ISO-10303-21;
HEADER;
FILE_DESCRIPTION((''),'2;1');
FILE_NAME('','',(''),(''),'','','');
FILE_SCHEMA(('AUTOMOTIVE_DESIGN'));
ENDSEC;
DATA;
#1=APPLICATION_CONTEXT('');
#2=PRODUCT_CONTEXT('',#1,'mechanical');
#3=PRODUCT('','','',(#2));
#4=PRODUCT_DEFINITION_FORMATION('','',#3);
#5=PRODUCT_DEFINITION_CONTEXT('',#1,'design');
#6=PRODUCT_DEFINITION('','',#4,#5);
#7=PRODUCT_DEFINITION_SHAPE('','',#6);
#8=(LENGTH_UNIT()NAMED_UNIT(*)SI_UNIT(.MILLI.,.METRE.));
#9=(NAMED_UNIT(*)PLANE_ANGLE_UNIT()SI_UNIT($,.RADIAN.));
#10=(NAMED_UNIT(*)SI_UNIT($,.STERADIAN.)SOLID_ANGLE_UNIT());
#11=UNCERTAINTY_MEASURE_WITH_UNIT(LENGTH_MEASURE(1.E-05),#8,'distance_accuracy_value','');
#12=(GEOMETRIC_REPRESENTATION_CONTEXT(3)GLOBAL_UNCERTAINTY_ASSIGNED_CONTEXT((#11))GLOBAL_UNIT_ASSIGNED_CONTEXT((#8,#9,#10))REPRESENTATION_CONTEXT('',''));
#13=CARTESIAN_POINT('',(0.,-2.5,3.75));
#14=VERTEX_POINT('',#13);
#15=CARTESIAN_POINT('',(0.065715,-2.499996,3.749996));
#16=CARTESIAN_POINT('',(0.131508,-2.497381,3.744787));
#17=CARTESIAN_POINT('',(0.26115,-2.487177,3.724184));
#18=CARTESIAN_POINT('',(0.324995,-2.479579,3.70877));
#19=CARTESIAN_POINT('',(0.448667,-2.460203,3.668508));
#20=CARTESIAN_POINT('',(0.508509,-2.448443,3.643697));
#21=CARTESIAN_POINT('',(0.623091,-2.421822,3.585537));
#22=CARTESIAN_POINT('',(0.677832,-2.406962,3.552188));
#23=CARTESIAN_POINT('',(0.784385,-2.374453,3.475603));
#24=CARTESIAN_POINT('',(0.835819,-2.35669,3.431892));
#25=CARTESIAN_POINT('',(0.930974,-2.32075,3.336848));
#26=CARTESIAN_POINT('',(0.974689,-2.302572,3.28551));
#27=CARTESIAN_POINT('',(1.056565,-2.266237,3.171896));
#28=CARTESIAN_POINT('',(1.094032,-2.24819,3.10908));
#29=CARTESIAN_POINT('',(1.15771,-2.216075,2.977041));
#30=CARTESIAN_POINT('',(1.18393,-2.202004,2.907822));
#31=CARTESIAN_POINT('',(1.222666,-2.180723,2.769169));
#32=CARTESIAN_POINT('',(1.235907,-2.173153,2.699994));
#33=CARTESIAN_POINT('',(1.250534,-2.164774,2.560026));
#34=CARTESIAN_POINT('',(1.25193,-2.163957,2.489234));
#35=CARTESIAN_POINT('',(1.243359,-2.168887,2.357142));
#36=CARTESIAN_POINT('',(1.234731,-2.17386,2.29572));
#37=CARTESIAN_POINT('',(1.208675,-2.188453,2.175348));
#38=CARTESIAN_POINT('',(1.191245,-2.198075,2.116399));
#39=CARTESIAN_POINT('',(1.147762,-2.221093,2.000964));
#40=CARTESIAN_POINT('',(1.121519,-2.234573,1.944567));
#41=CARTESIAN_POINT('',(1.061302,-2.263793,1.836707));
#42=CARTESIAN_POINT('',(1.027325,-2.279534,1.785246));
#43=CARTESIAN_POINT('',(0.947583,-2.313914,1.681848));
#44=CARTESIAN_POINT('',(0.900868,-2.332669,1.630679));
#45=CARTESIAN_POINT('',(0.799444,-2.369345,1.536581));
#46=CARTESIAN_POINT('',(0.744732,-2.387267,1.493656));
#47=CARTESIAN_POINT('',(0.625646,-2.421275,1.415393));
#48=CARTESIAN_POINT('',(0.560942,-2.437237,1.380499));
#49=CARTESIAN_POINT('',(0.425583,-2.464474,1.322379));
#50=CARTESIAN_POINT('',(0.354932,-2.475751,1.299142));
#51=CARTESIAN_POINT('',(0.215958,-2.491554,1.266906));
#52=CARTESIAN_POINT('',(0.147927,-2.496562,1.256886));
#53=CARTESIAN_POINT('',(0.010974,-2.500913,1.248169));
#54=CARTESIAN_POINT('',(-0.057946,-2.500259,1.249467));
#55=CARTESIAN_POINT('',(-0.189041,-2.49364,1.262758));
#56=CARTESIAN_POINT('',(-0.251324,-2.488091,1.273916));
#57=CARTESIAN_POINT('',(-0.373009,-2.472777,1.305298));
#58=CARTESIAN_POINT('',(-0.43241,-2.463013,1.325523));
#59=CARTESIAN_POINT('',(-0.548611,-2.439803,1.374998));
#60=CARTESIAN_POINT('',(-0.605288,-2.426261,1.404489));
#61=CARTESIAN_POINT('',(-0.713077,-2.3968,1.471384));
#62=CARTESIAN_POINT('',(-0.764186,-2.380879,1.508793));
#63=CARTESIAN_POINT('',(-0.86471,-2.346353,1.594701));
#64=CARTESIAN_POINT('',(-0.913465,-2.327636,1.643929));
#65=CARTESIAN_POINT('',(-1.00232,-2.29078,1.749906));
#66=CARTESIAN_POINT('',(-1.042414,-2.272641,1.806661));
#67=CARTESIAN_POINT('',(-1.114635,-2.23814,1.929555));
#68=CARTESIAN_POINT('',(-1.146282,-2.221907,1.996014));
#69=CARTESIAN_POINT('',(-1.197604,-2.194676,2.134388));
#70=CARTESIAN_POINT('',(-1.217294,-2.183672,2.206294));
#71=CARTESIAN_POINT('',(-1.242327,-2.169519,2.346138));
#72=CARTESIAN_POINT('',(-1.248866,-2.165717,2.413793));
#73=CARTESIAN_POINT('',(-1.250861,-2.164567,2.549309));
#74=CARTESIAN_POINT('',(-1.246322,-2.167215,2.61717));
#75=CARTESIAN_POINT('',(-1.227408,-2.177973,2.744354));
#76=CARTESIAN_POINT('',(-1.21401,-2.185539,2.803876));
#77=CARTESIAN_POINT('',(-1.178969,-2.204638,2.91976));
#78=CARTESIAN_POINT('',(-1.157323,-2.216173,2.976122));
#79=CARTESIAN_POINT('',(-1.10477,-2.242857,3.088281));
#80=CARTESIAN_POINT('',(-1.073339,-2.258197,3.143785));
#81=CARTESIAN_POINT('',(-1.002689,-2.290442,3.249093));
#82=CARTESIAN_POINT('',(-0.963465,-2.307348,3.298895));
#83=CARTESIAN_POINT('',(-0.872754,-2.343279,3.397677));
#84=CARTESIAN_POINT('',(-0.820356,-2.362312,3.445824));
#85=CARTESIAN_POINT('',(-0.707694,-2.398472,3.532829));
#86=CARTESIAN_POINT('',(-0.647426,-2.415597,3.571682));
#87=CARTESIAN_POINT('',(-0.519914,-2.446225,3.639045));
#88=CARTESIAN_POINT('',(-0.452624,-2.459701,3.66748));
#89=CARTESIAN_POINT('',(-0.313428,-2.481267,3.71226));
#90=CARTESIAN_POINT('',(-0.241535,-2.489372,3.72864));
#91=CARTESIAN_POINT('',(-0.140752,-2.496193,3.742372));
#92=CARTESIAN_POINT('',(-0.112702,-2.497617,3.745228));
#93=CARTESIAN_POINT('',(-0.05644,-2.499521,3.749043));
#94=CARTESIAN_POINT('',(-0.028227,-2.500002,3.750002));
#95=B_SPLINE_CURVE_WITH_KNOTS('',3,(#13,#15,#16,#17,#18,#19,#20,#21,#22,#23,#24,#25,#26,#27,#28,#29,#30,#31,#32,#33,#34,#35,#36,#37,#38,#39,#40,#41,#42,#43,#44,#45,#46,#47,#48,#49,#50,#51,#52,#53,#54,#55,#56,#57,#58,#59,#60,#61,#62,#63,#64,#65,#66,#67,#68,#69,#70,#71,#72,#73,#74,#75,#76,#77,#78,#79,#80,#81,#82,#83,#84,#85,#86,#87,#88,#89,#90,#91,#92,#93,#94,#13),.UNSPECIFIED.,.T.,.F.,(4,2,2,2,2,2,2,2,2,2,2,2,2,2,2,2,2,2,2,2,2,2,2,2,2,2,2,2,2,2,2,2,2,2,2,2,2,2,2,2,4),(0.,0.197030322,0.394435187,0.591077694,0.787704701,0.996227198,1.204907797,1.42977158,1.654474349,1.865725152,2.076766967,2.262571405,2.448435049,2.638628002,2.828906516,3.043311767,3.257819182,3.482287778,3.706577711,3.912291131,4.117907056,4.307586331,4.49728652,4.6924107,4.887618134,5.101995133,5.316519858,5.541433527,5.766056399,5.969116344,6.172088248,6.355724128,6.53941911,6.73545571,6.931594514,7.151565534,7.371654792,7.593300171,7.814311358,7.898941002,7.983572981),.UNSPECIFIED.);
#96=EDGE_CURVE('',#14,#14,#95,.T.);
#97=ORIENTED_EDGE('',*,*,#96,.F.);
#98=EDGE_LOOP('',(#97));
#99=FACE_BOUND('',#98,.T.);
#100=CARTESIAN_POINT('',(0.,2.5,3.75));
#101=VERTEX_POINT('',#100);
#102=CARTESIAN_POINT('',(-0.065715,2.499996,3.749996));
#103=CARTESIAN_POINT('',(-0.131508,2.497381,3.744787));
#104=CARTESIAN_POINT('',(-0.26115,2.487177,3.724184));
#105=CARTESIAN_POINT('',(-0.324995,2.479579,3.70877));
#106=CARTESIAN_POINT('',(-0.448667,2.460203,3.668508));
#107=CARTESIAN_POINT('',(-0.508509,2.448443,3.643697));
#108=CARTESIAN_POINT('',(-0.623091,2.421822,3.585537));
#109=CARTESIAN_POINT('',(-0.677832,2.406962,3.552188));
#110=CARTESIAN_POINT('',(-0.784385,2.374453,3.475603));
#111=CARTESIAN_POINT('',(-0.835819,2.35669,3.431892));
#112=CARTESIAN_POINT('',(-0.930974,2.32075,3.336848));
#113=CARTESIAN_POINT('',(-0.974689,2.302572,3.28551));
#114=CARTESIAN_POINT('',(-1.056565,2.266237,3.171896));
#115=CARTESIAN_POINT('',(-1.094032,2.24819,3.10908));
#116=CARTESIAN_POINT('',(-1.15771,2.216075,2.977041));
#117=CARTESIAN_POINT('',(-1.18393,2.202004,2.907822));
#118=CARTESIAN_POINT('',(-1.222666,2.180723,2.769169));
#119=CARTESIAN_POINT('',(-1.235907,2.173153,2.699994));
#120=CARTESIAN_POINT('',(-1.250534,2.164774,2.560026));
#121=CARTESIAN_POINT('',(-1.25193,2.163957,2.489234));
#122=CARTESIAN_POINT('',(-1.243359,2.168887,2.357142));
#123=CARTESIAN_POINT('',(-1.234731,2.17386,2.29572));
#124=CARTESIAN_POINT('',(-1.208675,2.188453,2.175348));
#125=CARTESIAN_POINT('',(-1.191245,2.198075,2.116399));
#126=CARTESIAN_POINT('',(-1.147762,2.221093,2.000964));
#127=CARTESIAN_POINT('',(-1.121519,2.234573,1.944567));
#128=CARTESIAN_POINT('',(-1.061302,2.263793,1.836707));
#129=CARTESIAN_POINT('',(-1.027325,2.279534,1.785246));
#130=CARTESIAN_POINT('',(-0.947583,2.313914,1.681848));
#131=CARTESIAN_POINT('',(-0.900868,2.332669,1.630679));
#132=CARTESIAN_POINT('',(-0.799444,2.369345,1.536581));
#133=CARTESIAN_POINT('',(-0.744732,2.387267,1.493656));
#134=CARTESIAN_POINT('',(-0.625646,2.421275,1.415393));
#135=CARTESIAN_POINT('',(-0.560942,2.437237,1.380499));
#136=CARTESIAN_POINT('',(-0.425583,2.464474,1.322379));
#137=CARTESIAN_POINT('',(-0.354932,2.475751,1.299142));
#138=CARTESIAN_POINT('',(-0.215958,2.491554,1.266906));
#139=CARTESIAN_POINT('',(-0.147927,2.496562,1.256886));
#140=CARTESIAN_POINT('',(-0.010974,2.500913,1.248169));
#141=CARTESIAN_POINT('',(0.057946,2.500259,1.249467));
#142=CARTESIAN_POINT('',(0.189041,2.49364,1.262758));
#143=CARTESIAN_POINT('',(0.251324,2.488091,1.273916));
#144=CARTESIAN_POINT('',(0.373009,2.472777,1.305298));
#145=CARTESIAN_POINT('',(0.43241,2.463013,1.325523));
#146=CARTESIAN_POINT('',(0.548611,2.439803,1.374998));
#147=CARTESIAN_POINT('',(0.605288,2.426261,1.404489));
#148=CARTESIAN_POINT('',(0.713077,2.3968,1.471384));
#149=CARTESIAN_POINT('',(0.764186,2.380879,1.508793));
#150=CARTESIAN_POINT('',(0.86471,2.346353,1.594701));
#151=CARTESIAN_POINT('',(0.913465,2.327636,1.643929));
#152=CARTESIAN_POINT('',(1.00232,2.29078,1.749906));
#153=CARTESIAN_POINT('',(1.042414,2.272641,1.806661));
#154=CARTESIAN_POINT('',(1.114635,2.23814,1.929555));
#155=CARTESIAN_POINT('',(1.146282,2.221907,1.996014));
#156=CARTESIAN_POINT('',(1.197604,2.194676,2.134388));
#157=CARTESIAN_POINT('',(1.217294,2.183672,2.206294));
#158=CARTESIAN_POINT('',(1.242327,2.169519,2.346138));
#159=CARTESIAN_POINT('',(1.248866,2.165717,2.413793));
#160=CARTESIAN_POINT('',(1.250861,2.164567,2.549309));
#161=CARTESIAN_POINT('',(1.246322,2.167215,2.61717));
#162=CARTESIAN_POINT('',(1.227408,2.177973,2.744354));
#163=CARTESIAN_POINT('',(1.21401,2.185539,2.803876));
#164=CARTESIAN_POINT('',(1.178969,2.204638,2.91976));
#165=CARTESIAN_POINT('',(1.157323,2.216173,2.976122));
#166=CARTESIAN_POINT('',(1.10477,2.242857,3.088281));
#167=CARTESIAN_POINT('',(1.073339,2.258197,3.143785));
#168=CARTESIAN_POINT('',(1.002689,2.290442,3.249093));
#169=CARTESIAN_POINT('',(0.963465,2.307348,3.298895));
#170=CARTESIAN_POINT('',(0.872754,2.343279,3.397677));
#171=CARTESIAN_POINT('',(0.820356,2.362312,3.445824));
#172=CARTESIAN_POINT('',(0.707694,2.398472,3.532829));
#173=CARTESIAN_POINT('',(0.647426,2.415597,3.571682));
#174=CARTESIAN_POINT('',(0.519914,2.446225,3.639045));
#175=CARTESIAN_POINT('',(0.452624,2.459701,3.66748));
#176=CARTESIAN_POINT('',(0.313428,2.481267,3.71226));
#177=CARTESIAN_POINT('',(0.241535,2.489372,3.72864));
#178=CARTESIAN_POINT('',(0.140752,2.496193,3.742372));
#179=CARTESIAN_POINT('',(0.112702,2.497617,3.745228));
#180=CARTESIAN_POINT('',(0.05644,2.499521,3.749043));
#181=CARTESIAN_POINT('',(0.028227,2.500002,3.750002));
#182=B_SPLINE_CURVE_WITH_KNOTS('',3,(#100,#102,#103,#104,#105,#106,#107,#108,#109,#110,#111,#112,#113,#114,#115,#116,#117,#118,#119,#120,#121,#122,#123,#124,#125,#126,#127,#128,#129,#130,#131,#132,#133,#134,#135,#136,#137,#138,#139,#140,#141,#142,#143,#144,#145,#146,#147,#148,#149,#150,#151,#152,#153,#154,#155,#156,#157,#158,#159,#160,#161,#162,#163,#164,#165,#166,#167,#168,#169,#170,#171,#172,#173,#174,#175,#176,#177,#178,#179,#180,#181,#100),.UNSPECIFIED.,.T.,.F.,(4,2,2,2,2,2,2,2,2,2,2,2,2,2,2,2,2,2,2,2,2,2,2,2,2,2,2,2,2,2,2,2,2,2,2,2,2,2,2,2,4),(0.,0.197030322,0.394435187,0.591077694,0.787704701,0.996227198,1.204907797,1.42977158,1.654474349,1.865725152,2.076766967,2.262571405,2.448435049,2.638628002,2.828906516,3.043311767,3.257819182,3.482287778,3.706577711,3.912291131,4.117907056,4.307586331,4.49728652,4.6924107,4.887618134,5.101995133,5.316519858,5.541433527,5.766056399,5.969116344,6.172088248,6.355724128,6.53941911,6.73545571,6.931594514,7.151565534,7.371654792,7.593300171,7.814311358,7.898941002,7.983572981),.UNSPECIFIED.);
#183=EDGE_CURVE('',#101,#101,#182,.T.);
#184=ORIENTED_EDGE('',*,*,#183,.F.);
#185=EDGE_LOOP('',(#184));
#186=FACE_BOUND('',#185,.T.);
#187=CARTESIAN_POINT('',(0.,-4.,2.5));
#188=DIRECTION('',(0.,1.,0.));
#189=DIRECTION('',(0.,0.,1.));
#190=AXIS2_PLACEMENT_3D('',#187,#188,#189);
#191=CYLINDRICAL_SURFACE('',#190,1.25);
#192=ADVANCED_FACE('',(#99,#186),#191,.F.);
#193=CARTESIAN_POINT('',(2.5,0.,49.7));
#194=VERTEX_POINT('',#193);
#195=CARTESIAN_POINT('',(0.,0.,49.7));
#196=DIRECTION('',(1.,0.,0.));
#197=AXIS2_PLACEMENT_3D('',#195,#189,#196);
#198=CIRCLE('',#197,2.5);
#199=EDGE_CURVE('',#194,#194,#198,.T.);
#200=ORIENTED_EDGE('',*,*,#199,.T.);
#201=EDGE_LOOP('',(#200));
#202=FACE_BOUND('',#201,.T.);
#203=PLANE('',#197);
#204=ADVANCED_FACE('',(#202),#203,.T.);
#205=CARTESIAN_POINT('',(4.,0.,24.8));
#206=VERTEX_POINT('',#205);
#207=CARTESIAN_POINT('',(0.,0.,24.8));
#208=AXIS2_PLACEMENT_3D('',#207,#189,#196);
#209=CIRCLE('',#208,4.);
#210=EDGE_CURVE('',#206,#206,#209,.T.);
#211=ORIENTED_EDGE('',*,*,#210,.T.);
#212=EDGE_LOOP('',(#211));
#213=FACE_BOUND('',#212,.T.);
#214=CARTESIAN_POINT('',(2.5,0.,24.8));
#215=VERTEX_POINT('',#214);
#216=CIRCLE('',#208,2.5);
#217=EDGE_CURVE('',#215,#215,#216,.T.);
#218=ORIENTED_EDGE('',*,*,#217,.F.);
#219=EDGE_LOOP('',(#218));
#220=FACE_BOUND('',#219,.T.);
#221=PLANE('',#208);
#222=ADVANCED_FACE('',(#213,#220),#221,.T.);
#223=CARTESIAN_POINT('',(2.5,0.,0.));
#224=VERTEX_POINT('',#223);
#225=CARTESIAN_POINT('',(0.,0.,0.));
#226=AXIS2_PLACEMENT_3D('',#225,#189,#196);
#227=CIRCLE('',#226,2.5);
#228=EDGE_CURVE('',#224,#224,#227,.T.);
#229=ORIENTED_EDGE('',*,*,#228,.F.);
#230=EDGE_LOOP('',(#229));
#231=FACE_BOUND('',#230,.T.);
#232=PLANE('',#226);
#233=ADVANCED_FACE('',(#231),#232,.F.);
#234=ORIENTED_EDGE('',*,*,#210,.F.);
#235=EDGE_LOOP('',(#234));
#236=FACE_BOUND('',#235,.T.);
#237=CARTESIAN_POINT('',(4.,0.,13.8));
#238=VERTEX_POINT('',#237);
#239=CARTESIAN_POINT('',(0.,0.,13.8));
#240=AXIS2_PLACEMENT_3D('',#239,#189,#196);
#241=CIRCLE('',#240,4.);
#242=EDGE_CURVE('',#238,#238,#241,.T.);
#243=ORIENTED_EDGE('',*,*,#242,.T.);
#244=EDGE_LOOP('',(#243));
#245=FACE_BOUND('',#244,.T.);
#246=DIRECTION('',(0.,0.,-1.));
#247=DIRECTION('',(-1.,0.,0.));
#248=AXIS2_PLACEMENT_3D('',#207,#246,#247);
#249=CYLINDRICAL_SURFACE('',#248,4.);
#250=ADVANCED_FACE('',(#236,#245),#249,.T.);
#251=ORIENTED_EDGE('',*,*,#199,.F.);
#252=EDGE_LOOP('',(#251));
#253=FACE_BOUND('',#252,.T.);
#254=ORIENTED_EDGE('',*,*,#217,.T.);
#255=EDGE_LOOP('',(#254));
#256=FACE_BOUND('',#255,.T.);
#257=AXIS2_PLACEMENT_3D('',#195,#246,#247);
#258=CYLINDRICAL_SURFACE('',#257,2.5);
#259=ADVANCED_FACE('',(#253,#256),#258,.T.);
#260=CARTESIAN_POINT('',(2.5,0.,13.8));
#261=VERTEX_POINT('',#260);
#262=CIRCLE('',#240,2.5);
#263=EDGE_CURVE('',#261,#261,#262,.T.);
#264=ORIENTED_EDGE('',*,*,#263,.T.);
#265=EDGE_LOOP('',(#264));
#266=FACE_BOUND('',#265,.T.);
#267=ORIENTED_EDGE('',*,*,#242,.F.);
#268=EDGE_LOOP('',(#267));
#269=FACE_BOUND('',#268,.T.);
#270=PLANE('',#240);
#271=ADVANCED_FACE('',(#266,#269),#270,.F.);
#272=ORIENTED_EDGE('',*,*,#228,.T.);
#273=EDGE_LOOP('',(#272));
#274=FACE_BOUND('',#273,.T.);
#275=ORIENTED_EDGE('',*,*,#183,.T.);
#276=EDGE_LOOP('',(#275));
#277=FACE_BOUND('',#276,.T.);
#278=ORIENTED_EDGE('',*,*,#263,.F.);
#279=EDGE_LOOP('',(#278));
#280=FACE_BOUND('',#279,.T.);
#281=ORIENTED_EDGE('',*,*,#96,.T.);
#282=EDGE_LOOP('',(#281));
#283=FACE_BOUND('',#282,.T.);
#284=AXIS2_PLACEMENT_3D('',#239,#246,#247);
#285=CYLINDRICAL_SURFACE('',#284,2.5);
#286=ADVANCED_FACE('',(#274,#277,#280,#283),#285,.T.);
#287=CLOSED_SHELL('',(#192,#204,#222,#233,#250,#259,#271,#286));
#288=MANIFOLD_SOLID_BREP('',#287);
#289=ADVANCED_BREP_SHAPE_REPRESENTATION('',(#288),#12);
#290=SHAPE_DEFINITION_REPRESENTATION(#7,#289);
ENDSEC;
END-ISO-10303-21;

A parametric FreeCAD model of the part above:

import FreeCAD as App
import Part
import Sketcher

V = App.Vector
Q = App.Units.Quantity

doc = App.newDocument("Part")
body = doc.addObject("PartDesign::Body", "Body")

# Sketch on XY plane
sketch1 = doc.addObject("Sketcher::SketchObject", "Sketch")
body.addObject(sketch1)
sketch1.AttachmentSupport = (doc.XY_Plane, [""])
sketch1.MapMode = "FlatFace"
sketch1.addGeometry(Part.Circle(V(0, 0, 0), V(0, 0, 1), 2.5), False)
sketch1.addConstraint([
    Sketcher.Constraint("Coincident", 0, 3, -1, 1),
    Sketcher.Constraint("Diameter", 0, Q("5 mm")),
])
pad1 = doc.addObject("PartDesign::Pad", "Pad")
body.addObject(pad1)
pad1.Profile = sketch1
pad1.Length = 13.8

# Sketch on XY plane
sketch2 = doc.addObject("Sketcher::SketchObject", "Sketch001")
body.addObject(sketch2)
sketch2.AttachmentSupport = (doc.XY_Plane, [""])
sketch2.MapMode = "FlatFace"
sketch2.AttachmentOffset = App.Placement(V(0, 0, 13.8), App.Rotation())
sketch2.addGeometry(Part.Circle(V(0, 0, 0), V(0, 0, 1), 4), False)
sketch2.addConstraint([
    Sketcher.Constraint("Coincident", 0, 3, -1, 1),
    Sketcher.Constraint("Diameter", 0, Q("8 mm")),
])
pad2 = doc.addObject("PartDesign::Pad", "Pad001")
body.addObject(pad2)
pad2.Profile = sketch2
pad2.Length = 11

# Sketch on XY plane
sketch3 = doc.addObject("Sketcher::SketchObject", "Sketch002")
body.addObject(sketch3)
sketch3.AttachmentSupport = (doc.XY_Plane, [""])
sketch3.MapMode = "FlatFace"
sketch3.AttachmentOffset = App.Placement(V(0, 0, 24.8), App.Rotation())
sketch3.addGeometry(Part.Circle(V(0, 0, 0), V(0, 0, 1), 2.5), False)
sketch3.addConstraint([
    Sketcher.Constraint("Coincident", 0, 3, -1, 1),
    Sketcher.Constraint("Diameter", 0, Q("5 mm")),
])
pad3 = doc.addObject("PartDesign::Pad", "Pad002")
body.addObject(pad3)
pad3.Profile = sketch3
pad3.Length = 24.9

# Sketch on XZ plane
sketch4 = doc.addObject("Sketcher::SketchObject", "Sketch003")
body.addObject(sketch4)
sketch4.AttachmentSupport = (doc.XZ_Plane, [""])
sketch4.MapMode = "FlatFace"
sketch4.addGeometry(Part.Circle(V(0, 2.5, 0), V(0, 0, 1), 1.2), False)
sketch4.addConstraint([
    Sketcher.Constraint("PointOnObject", 0, 3, -2),
    Sketcher.Constraint("Diameter", 0, Q("2.5 mm")),
    Sketcher.Constraint("DistanceY", -1, 1, 0, 3, Q("2.5 mm")),
])
pocket1 = doc.addObject("PartDesign::Pocket", "Pocket")
body.addObject(pocket1)
pocket1.Profile = sketch4
pocket1.Type = "ThroughAll"
pocket1.Midplane = True

doc.recompute()
